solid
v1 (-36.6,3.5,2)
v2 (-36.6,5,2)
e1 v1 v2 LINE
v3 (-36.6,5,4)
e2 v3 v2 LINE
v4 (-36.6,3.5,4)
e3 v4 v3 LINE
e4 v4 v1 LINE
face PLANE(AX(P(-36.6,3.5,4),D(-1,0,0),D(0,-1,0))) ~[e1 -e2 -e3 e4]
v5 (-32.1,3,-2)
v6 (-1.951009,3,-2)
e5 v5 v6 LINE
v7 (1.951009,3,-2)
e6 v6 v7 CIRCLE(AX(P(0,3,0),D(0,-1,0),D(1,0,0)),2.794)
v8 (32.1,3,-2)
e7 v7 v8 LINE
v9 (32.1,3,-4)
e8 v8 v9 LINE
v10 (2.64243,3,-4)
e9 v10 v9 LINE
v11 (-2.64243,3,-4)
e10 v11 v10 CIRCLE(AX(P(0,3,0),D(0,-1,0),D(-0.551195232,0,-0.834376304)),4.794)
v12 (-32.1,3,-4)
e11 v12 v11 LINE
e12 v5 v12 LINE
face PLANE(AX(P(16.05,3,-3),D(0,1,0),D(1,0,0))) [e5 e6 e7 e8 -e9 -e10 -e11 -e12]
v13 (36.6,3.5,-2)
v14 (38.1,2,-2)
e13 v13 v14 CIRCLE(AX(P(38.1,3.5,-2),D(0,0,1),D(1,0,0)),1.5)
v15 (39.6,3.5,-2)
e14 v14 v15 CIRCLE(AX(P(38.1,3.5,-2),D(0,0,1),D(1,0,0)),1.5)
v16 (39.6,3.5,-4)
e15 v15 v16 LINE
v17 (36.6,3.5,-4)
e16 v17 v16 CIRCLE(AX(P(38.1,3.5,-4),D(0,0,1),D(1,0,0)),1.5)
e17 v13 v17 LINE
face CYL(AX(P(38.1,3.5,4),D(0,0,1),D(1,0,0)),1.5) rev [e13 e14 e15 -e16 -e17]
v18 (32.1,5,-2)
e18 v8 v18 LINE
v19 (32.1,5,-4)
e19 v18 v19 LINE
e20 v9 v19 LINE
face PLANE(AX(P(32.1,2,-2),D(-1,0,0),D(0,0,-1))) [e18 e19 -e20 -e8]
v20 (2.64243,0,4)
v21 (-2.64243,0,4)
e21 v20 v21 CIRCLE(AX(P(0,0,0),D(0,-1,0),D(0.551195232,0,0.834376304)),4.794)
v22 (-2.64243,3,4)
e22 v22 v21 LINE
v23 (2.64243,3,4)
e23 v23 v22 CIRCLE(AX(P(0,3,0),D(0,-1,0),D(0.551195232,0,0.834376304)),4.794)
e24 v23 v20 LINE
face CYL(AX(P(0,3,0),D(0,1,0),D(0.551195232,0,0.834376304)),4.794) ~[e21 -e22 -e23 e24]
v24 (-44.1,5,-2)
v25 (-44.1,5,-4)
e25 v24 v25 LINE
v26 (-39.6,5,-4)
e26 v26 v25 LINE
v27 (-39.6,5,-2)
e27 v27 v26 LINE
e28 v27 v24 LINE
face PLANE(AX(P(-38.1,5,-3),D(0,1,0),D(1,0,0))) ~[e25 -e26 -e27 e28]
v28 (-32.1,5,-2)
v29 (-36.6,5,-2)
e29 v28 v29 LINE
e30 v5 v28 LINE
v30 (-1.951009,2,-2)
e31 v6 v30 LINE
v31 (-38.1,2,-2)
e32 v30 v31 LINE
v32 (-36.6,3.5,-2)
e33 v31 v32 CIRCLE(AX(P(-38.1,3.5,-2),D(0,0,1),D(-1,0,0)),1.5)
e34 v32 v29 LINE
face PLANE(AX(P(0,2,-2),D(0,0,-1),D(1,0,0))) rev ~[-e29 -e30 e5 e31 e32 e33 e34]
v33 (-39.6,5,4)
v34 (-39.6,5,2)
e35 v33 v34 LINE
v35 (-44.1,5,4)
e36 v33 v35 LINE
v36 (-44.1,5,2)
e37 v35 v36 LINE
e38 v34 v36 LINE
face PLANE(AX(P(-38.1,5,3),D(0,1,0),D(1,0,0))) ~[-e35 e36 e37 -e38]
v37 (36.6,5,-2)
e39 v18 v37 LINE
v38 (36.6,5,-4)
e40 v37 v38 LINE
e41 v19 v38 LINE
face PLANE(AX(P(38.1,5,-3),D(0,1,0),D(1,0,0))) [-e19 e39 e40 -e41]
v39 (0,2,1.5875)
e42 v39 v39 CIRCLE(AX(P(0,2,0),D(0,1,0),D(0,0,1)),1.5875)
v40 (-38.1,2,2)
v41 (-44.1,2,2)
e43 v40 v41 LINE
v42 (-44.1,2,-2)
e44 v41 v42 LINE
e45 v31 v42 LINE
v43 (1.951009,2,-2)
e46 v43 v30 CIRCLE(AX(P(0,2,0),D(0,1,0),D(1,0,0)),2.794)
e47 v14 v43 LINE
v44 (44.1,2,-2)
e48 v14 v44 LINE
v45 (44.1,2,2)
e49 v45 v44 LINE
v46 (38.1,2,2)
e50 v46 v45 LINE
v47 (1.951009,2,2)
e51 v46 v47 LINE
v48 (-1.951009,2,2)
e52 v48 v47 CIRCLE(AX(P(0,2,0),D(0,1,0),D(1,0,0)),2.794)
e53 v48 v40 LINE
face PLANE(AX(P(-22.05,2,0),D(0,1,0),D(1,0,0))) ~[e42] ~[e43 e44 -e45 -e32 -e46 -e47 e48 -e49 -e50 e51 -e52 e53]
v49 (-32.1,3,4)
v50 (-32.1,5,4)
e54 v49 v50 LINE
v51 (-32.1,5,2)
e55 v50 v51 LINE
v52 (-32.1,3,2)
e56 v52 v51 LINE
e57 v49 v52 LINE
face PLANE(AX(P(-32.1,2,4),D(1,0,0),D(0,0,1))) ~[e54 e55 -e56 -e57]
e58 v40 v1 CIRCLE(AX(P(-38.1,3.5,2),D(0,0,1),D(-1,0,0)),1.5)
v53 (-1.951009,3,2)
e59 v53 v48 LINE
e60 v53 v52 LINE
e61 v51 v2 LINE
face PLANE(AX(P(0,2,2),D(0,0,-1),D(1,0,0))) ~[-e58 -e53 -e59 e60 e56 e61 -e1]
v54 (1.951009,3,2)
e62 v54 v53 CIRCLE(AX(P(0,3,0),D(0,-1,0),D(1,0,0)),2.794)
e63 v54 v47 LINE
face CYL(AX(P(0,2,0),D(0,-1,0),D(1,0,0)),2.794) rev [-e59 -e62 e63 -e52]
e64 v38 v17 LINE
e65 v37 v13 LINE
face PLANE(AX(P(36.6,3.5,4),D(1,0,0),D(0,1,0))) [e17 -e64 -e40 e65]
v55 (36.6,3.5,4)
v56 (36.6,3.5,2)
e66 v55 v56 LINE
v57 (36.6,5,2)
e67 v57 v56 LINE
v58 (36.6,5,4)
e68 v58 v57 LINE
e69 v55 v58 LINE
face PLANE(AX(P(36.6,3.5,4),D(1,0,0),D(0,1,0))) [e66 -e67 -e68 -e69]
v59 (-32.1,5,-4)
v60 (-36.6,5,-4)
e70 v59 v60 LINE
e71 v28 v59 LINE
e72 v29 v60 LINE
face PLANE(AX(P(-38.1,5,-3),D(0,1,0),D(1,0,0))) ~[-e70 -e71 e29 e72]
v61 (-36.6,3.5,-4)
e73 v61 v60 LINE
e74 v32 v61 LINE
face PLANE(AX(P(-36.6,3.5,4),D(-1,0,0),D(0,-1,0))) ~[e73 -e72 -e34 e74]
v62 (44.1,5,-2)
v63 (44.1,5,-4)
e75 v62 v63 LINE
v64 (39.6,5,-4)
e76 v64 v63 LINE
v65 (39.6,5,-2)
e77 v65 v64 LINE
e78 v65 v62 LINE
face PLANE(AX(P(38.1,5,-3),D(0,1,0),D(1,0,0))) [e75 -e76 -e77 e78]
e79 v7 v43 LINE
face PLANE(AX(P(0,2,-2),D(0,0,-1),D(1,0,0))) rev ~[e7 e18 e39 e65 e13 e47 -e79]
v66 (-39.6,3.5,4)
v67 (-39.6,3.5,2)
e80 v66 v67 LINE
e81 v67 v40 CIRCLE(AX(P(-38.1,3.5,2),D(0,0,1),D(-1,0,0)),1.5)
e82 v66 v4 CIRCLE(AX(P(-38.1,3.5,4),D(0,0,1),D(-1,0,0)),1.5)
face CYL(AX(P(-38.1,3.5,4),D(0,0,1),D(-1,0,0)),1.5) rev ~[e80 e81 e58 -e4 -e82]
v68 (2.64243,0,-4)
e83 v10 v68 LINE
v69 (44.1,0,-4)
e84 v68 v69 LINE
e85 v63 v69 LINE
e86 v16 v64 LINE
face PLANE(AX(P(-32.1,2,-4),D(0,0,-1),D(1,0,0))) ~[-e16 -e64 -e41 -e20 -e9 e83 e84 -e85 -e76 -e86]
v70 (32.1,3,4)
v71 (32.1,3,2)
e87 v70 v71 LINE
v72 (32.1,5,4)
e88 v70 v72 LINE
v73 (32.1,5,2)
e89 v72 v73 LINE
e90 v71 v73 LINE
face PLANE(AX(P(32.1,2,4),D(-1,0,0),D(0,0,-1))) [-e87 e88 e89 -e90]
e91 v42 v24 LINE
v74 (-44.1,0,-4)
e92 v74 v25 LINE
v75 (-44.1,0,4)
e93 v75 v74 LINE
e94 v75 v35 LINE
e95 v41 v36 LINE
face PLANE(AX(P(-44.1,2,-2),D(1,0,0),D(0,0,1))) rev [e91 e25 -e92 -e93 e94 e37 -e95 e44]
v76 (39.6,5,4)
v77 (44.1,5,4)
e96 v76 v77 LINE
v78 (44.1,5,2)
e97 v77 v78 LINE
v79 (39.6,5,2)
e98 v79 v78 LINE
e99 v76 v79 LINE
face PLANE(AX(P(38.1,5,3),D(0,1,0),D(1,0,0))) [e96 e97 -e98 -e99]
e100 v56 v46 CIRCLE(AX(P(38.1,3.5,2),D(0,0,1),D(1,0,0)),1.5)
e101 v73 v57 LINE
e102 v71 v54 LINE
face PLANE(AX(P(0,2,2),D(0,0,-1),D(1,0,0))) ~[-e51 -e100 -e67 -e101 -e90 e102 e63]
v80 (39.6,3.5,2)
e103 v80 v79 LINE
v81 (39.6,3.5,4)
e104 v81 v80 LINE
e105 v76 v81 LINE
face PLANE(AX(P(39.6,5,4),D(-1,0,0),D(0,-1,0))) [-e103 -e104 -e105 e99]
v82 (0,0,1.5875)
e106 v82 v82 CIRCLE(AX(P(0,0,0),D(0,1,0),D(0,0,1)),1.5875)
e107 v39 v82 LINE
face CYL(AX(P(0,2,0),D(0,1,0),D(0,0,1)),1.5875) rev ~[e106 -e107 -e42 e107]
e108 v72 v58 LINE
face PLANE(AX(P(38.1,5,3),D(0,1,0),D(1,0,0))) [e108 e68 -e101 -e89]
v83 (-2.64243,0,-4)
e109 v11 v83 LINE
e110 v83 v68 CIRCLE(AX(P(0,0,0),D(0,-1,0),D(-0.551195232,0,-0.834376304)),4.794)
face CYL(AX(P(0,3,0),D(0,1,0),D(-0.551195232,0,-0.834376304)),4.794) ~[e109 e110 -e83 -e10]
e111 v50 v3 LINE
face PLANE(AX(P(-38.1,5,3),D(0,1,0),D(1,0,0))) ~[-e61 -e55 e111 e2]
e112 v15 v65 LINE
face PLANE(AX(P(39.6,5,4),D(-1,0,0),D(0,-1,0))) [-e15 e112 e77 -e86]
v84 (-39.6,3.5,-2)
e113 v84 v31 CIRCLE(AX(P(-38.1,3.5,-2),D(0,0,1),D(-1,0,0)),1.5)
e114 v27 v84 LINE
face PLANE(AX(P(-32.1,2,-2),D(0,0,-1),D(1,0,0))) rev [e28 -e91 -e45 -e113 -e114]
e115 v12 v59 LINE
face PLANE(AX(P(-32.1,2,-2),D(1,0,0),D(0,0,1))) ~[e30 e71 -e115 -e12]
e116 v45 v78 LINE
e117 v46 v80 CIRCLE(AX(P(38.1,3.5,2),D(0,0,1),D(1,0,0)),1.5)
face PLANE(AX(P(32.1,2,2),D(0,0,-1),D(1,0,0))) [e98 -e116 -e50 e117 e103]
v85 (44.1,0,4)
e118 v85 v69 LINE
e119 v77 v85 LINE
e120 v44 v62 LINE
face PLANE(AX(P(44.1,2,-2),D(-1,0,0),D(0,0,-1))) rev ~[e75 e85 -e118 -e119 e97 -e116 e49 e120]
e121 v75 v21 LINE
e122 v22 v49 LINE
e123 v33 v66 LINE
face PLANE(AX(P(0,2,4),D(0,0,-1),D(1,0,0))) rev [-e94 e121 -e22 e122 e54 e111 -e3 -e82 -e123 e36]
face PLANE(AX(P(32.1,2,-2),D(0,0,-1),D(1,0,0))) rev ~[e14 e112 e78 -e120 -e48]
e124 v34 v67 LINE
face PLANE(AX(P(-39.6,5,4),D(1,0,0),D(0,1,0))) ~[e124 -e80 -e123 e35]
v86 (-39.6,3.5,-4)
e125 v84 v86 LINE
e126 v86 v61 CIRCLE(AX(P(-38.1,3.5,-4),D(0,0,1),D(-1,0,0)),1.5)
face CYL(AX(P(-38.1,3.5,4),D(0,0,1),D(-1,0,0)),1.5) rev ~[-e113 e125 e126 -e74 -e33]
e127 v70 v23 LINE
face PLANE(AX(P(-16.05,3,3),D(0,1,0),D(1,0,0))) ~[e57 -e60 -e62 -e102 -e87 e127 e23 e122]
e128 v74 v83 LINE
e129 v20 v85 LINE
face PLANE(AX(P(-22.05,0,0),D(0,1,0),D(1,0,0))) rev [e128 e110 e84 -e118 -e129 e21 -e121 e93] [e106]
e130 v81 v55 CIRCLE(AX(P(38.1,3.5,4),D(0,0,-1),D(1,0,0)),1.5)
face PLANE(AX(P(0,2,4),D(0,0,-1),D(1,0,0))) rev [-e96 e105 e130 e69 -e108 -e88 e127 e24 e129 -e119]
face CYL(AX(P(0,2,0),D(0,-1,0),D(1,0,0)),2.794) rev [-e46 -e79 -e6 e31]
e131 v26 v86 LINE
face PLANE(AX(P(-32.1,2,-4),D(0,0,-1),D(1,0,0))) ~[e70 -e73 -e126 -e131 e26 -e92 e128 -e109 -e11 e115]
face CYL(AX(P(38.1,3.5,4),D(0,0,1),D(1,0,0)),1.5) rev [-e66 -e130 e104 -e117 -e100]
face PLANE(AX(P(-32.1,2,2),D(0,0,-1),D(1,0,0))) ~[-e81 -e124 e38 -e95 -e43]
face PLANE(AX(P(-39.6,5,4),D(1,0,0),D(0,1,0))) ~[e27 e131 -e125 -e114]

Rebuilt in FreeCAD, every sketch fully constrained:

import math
import FreeCAD as App
import Part
import Sketcher

V = App.Vector


def add_polygon(sketch, points):
    """Adds a closed chain of lines whose ends are joined by coincident constraints."""
    first, n = sketch.GeometryCount, len(points)
    for a, b in zip(points, points[1:] + points[:1]):
        sketch.addGeometry(Part.LineSegment(App.Vector(*a, 0), App.Vector(*b, 0)), False)
    for i in range(n):
        sketch.addConstraint(Sketcher.Constraint("Coincident", first + i, 2, first + (i + 1) % n, 1))

doc = App.newDocument("Part")
body = doc.addObject("PartDesign::Body", "Body")

# Sketch on XZ plane
sketch1 = body.newObject("Sketcher::SketchObject", "Sketch")
sketch1.AttachmentSupport = (doc.getObject("XZ_Plane"), [""])
sketch1.MapMode = "FlatFace"
add_polygon(sketch1, [(0, -4), (0, 4), (44, 4), (44, -4)])  # lines 0-3
sketch1.addConstraint([
    Sketcher.Constraint("Vertical", 0),
    Sketcher.Constraint("Horizontal", 1),
    Sketcher.Constraint("Vertical", 2),
    Sketcher.Constraint("Horizontal", 3),
    Sketcher.Constraint("Symmetric", 0, 2, 3, 2, -1, 1),
    Sketcher.Constraint("DistanceY", 0, 1, 0, 2, 8.0),
    Sketcher.Constraint("DistanceX", 1, 1, 1, 2, 44.1),
])
pad1 = body.newObject("PartDesign::Pad", "Pad")
pad1.Profile = sketch1
pad1.Length = 2
pad1.Reversed = True

# Sketch on XZ plane
sketch2 = body.newObject("Sketcher::SketchObject", "Sketch001")
sketch2.AttachmentSupport = (doc.getObject("XZ_Plane"), [""])
sketch2.MapMode = "FlatFace"
sketch2.AttachmentOffset = App.Placement(V(0, 0, -2), App.Rotation())
add_polygon(sketch2, [(32.1, -4), (32.1, -2), (44.1, -2), (44.1, -4)])  # lines 0-3
add_polygon(sketch2, [(32.1, 2), (32.1, 4), (44.1, 4), (44.1, 2)])  # lines 4-7
sketch2.addConstraint([
    Sketcher.Constraint("Vertical", 0),
    Sketcher.Constraint("Horizontal", 1),
    Sketcher.Constraint("Vertical", 2),
    Sketcher.Constraint("Horizontal", 3),
    Sketcher.Constraint("Vertical", 4),
    Sketcher.Constraint("Horizontal", 5),
    Sketcher.Constraint("Vertical", 6),
    Sketcher.Constraint("Horizontal", 7),
    Sketcher.Constraint("Symmetric", 3, 2, 4, 2, -1),
    Sketcher.Constraint("Symmetric", 1, 2, 6, 2, -1),
    Sketcher.Constraint("DistanceX", 1, 1, 1, 2, 12.0),
    Sketcher.Constraint("DistanceY", 0, 1, 0, 2, 2.0),
    Sketcher.Constraint("DistanceY", 0, 2, -1, 1, 2.0),
    Sketcher.Constraint("DistanceX", -1, 1, 0, 2, 32.1),
])
pad2 = body.newObject("PartDesign::Pad", "Pad001")
pad2.Profile = sketch2
pad2.Length = 3
pad2.Reversed = True

# Sketch on XY plane
sketch3 = body.newObject("Sketcher::SketchObject", "Sketch002")
sketch3.AttachmentSupport = (doc.getObject("XY_Plane"), [""])
sketch3.MapMode = "FlatFace"
sketch3.AttachmentOffset = App.Placement(V(0, 0, 4), App.Rotation())
sketch3.addGeometry([
    Part.LineSegment(V(36.6, 5, 0), V(36.6, 3.5, 0)),
    Part.ArcOfCircle(Part.Circle(V(38.1, 3.5, 0), V(0, 0, 1), 1.5), math.radians(180), math.radians(360)),
    Part.LineSegment(V(39.6, 3.5, 0), V(39.6, 5, 0)),
    Part.LineSegment(V(39.6, 5, 0), V(36.6, 5, 0)),
], False)
sketch3.addConstraint([
    Sketcher.Constraint("Tangent", 0, 2, 1, 1),
    Sketcher.Constraint("Tangent", 1, 2, 2, 1),
    Sketcher.Constraint("Coincident", 2, 2, 3, 1),
    Sketcher.Constraint("Coincident", 3, 2, 0, 1),
    Sketcher.Constraint("Vertical", 0),
    Sketcher.Constraint("Vertical", 2),
    Sketcher.Constraint("Horizontal", 3),
    Sketcher.Constraint("Radius", 1, 1.5),
    Sketcher.Constraint("DistanceY", 0, 2, 0, 1, 1.5),
    Sketcher.Constraint("DistanceY", -1, 1, 2, 2, 5.0),
    Sketcher.Constraint("DistanceX", -1, 1, 1, 3, 38.1),
])
pocket1 = body.newObject("PartDesign::Pocket", "Pocket")
pocket1.Profile = sketch3
pocket1.Type = "ThroughAll"

# Sketch on XZ plane
sketch4 = body.newObject("Sketcher::SketchObject", "Sketch003")
sketch4.AttachmentSupport = (doc.getObject("XZ_Plane"), [""])
sketch4.MapMode = "FlatFace"
sketch4.AttachmentOffset = App.Placement(V(0, 0, -2), App.Rotation())
add_polygon(sketch4, [(0, 2), (0, 4), (32.1, 4), (32.1, 2)])  # lines 0-3
add_polygon(sketch4, [(0, -4), (0, -2), (32.1, -2), (32.1, -4)])  # lines 4-7
sketch4.addConstraint([
    Sketcher.Constraint("Vertical", 0),
    Sketcher.Constraint("Horizontal", 1),
    Sketcher.Constraint("Vertical", 2),
    Sketcher.Constraint("Horizontal", 3),
    Sketcher.Constraint("Vertical", 4),
    Sketcher.Constraint("Horizontal", 5),
    Sketcher.Constraint("Vertical", 6),
    Sketcher.Constraint("Horizontal", 7),
    Sketcher.Constraint("Symmetric", 3, 2, 4, 2, -1, 1),
    Sketcher.Constraint("Symmetric", 1, 2, 6, 2, -1),
    Sketcher.Constraint("PointOnObject", 0, 2, -2),
    Sketcher.Constraint("DistanceY", 0, 1, 0, 2, 2.0),
    Sketcher.Constraint("DistanceX", 1, 1, 1, 2, 32.1),
    Sketcher.Constraint("DistanceY", -1, 1, 0, 2, 4.0),
])
pad3 = body.newObject("PartDesign::Pad", "Pad002")
pad3.Profile = sketch4
pad3.Length = 1
pad3.Reversed = True
doc.recompute()

mirrored = body.newObject("PartDesign::Mirrored", "Mirrored")
mirrored.Originals = [pad1, pad2, pocket1, pad3]
mirrored.MirrorPlane = (doc.getObject("YZ_Plane"), [""])
body.Tip = mirrored

# Sketch on XZ plane
sketch5 = body.newObject("Sketcher::SketchObject", "Sketch004")
sketch5.AttachmentSupport = (doc.getObject("XZ_Plane"), [""])
sketch5.MapMode = "FlatFace"
sketch5.AttachmentOffset = App.Placement(V(0, 0, -2), App.Rotation())
sketch5.addGeometry(Part.Circle(V(0, 0, 0), V(0, 0, 1), 2.8), False)
sketch5.addConstraint([
    Sketcher.Constraint("Coincident", 0, 3, -1, 1),
    Sketcher.Constraint("Diameter", 0, 5.588),
])
pocket2 = body.newObject("PartDesign::Pocket", "Pocket001")
pocket2.Profile = sketch5
pocket2.Type = "ThroughAll"

# Sketch on XZ plane
sketch6 = body.newObject("Sketcher::SketchObject", "Sketch005")
sketch6.AttachmentSupport = (doc.getObject("XZ_Plane"), [""])
sketch6.MapMode = "FlatFace"
sketch6.AttachmentOffset = App.Placement(V(0, 0, -2), App.Rotation())
sketch6.addGeometry(Part.Circle(V(0, 0, 0), V(0, 0, 1), 1.6), False)
sketch6.addConstraint([
    Sketcher.Constraint("Coincident", 0, 3, -1, 1),
    Sketcher.Constraint("Diameter", 0, 3.175),
])
pocket3 = body.newObject("PartDesign::Pocket", "Pocket002")
pocket3.Profile = sketch6
pocket3.Type = "ThroughAll"
pocket3.Reversed = True

# Sketch on XZ plane
sketch7 = body.newObject("Sketcher::SketchObject", "Sketch006")
sketch7.AttachmentSupport = (doc.getObject("XZ_Plane"), [""])
sketch7.MapMode = "FlatFace"
sketch7.AttachmentOffset = App.Placement(V(0, 0, -3), App.Rotation())
sketch7.addGeometry([
    Part.LineSegment(V(2.6, 4, 0), V(-2.6, 4, 0)),
    Part.ArcOfCircle(Part.Circle(V(0, 0, 0), V(0, 0, 1), 4.8), math.radians(57), math.radians(123)),
    Part.LineSegment(V(-2.6, -4, 0), V(2.6, -4, 0)),
    Part.ArcOfCircle(Part.Circle(V(0, 0, 0), V(0, 0, 1), 4.8), math.radians(-123), math.radians(-57)),
], False)
sketch7.addConstraint([
    Sketcher.Constraint("Coincident", 0, 1, 1, 1),
    Sketcher.Constraint("Coincident", 1, 2, 0, 2),
    Sketcher.Constraint("Coincident", 2, 1, 3, 1),
    Sketcher.Constraint("Coincident", 3, 2, 2, 2),
    Sketcher.Constraint("Horizontal", 0),
    Sketcher.Constraint("Horizontal", 2),
    Sketcher.Constraint("Coincident", 1, 3, -1, 1),
    Sketcher.Constraint("Coincident", 3, 3, -1, 1),
    Sketcher.Constraint("Equal", 1, 3),
    Sketcher.Constraint("Vertical", 1, 2, 2, 1),
    Sketcher.Constraint("DistanceY", -1, 1, 0, 1, 4.0),
    Sketcher.Constraint("Radius", 1, 4.794),
])
pad4 = body.newObject("PartDesign::Pad", "Pad003")
pad4.Profile = sketch7
pad4.Length = 3

doc.recompute()
